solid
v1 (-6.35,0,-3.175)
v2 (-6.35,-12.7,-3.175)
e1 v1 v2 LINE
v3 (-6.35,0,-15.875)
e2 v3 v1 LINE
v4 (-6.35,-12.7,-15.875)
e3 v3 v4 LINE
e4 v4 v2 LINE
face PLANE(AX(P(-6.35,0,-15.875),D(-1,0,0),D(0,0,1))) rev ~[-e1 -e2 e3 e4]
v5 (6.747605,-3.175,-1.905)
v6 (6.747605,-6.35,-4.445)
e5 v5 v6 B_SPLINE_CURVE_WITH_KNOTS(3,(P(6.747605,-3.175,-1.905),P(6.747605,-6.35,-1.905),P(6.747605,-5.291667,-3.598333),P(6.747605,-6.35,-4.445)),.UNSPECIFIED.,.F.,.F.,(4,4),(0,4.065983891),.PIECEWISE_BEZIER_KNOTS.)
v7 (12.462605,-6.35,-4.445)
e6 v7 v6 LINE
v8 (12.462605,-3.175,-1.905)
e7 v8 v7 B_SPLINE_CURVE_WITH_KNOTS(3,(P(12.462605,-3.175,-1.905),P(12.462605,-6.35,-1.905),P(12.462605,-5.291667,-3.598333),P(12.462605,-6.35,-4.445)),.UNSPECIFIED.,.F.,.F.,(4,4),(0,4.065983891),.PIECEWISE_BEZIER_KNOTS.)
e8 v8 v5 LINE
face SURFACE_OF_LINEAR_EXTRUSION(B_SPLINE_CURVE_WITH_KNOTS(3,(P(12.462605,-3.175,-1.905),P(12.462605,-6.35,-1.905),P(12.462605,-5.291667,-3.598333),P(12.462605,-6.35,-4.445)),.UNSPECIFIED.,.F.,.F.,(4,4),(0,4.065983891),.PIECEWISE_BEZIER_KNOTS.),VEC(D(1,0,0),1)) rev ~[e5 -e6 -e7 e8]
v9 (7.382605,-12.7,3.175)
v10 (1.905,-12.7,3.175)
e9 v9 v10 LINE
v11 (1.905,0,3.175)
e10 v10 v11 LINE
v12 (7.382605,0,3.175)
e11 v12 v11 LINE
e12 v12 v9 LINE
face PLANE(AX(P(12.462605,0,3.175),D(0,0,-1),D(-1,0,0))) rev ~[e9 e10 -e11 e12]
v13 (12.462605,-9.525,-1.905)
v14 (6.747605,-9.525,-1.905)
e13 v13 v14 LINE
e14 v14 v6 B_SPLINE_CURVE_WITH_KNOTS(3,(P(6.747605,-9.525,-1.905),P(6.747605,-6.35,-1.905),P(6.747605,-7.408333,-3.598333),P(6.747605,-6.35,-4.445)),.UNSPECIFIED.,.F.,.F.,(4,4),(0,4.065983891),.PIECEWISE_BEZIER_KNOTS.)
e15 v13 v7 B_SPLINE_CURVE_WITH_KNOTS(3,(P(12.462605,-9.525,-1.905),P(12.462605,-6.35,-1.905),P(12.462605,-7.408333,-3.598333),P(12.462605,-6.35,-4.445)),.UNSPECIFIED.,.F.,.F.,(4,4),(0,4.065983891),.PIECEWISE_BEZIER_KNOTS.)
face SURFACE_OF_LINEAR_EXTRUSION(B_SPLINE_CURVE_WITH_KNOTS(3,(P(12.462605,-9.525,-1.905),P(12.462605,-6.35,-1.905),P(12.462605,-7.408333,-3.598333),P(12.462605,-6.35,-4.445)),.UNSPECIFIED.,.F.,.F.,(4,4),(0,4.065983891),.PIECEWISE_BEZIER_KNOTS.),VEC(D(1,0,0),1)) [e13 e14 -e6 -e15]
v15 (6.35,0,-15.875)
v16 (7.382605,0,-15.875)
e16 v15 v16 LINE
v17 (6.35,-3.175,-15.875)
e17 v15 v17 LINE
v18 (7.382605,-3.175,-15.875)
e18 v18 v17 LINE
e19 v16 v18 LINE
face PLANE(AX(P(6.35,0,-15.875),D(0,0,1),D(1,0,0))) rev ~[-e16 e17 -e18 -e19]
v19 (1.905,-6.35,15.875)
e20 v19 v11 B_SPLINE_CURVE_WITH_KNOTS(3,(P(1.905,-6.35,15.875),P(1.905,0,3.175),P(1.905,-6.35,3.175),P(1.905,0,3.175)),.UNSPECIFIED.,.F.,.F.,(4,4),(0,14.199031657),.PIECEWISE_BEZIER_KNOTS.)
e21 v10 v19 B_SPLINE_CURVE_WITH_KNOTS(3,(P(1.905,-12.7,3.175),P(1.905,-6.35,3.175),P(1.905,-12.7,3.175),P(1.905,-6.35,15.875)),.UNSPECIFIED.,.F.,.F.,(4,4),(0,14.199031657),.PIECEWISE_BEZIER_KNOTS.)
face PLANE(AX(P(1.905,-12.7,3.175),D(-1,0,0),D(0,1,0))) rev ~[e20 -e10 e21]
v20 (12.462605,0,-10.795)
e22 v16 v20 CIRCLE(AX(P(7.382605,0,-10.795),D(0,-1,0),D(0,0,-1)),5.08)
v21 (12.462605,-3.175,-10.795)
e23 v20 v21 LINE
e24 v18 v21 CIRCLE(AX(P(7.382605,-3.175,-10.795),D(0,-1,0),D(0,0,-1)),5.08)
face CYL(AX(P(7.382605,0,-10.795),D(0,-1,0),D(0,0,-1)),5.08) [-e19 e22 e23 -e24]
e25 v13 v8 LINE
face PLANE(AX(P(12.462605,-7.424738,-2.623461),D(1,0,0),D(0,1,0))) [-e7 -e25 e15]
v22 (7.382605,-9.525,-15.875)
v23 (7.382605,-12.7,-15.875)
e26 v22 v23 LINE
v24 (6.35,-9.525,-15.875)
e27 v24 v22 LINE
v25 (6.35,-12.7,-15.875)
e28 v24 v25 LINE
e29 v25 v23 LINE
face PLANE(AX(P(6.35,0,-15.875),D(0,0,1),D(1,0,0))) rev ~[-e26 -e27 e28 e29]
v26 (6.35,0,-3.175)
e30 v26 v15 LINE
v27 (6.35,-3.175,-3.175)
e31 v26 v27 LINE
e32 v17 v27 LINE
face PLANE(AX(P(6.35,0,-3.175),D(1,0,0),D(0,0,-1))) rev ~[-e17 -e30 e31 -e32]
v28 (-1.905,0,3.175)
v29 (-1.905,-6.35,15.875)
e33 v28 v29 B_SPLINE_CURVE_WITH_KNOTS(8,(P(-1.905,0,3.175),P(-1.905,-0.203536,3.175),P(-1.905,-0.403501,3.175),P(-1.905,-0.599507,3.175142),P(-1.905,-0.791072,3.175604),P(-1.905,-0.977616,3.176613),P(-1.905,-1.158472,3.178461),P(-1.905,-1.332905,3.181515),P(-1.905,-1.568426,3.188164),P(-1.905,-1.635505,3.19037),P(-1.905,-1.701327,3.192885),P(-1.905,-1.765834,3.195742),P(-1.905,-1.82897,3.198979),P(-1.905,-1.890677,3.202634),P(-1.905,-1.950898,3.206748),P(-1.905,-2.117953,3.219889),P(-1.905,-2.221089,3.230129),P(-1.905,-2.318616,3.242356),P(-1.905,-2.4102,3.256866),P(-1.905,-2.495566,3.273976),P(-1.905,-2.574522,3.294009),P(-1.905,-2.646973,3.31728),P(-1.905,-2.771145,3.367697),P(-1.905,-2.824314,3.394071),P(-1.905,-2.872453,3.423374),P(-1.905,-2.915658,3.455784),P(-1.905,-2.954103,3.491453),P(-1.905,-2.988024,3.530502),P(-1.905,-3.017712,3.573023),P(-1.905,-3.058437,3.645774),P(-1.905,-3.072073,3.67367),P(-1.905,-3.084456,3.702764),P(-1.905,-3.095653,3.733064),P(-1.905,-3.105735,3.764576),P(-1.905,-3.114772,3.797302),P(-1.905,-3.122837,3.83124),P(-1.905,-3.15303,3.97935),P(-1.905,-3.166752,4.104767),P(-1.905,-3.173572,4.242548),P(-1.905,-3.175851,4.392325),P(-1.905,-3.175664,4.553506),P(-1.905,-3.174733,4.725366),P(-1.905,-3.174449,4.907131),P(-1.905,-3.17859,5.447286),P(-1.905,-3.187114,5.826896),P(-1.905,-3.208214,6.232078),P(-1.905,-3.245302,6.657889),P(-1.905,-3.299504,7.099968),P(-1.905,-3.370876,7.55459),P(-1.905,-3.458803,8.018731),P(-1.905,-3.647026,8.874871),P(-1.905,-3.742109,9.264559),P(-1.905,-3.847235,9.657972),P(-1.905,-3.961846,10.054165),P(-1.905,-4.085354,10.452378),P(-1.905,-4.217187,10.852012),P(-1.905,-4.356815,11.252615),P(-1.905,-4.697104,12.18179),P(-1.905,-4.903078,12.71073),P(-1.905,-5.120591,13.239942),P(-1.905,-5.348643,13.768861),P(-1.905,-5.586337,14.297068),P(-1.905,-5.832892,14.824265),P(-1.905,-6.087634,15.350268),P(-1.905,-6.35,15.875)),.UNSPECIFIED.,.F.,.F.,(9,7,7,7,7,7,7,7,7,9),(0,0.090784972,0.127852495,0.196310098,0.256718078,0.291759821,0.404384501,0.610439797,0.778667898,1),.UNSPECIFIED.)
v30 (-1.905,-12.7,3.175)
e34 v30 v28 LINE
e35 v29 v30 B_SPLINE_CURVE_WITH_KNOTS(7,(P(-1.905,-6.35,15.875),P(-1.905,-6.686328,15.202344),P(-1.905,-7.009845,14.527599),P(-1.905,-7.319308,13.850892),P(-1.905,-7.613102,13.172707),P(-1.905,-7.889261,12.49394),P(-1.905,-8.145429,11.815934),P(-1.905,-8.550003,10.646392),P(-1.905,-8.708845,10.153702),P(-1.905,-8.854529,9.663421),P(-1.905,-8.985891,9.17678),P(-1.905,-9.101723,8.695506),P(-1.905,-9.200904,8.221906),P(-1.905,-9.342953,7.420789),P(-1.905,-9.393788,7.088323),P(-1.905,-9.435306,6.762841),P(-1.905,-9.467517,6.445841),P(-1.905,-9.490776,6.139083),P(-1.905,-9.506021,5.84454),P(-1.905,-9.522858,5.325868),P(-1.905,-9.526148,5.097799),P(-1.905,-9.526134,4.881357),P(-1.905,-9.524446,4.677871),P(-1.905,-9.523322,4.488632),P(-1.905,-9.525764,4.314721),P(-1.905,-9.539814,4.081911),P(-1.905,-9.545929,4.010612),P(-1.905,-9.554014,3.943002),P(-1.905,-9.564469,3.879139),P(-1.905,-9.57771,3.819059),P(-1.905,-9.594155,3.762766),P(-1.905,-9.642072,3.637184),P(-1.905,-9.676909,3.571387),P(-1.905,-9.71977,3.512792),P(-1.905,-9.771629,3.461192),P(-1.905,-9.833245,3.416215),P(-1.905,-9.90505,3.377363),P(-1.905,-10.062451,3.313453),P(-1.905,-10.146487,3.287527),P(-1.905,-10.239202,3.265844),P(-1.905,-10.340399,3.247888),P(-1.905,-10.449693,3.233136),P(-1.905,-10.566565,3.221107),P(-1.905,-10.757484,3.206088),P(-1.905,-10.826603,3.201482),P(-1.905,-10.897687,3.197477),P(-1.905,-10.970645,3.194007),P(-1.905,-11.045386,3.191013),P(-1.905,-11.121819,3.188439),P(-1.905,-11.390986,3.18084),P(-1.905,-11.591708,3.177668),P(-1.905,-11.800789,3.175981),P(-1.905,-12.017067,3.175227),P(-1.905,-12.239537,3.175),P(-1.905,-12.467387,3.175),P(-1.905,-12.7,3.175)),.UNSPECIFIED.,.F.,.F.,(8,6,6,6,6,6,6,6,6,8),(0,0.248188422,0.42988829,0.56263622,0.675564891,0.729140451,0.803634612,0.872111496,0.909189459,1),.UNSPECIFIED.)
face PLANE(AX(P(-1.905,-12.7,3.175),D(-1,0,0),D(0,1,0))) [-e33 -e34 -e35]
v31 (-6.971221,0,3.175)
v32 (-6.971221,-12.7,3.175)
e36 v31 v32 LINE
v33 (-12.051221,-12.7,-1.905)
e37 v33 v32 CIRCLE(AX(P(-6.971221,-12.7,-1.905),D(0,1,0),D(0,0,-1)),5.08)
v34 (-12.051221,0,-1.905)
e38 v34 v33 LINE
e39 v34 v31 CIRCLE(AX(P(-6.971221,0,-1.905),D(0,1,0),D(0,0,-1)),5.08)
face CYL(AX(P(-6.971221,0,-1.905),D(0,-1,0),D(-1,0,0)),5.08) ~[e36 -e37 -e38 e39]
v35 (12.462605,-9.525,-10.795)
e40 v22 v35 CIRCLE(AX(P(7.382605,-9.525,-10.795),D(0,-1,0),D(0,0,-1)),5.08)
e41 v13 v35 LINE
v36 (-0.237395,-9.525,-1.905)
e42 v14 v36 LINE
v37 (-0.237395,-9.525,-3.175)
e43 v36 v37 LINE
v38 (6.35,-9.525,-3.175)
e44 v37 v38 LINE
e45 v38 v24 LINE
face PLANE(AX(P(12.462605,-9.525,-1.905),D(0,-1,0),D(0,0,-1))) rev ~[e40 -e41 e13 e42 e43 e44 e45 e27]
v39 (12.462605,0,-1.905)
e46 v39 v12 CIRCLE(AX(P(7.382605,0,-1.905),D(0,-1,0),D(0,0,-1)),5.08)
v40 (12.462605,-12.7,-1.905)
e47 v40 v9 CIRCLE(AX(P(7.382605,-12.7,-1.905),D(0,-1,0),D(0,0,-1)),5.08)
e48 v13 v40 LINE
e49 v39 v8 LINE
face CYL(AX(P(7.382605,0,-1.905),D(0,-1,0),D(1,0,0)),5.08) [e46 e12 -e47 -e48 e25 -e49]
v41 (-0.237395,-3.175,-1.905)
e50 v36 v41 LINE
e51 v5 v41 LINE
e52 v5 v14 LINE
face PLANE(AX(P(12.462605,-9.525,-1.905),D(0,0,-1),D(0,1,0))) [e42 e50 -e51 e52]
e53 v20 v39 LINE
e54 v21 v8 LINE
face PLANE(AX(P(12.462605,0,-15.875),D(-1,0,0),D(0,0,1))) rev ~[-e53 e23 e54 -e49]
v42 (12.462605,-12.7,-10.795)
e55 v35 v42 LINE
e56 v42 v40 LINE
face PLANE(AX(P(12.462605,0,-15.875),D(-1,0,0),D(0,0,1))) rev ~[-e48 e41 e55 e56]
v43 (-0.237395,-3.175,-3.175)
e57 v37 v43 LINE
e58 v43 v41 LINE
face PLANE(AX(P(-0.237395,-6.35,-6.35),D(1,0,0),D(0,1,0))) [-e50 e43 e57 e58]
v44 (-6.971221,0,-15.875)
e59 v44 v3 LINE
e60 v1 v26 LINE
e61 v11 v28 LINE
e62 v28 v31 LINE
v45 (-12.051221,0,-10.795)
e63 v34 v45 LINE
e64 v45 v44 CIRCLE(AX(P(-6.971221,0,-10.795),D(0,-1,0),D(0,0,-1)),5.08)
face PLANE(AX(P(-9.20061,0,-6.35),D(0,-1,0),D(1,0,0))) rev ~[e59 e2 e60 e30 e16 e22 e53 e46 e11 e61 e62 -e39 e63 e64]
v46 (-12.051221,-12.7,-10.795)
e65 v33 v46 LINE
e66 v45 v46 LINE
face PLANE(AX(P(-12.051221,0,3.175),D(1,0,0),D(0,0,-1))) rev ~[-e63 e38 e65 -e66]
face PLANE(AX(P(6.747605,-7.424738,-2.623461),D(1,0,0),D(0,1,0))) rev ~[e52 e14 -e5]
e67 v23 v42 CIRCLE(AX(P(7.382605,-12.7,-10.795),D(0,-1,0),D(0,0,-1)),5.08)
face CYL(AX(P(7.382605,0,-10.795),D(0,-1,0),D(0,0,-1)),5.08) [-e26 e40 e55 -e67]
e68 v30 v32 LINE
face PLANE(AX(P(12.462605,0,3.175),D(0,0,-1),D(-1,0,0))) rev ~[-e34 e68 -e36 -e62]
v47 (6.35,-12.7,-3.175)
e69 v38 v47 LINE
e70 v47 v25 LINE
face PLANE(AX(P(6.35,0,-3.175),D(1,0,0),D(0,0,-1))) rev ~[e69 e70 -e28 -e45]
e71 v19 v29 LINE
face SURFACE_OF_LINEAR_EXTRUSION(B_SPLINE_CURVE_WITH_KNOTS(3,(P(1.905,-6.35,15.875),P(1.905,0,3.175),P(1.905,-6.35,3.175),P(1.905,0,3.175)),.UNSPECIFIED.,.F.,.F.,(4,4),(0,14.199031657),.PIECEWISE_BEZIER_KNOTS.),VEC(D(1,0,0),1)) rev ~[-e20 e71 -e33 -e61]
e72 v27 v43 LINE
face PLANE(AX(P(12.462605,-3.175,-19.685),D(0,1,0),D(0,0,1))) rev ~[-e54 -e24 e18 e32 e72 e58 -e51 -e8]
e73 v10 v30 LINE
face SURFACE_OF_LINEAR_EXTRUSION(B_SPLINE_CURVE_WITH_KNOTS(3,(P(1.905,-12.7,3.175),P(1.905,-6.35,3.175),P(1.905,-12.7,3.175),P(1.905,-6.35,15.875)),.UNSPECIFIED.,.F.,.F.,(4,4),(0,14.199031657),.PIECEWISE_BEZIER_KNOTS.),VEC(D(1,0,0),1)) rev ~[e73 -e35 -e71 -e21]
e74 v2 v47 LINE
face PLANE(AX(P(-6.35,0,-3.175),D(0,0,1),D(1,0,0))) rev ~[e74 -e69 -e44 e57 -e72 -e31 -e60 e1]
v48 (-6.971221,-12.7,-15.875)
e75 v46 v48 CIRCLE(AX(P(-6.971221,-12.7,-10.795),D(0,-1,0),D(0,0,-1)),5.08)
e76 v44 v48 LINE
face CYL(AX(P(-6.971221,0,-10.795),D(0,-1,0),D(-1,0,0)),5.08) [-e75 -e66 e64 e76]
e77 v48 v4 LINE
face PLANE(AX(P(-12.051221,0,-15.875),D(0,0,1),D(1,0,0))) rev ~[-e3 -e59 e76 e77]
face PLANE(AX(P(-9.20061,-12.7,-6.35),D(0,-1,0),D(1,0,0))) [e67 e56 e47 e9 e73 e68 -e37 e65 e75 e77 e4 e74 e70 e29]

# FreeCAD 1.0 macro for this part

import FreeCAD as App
import Part
import Sketcher
from FreeCAD import Vector
Q = App.Units.Quantity


def edges_at(feature, points):
    """Names of the edges that pass closest to the given points."""
    edges = feature.Shape.Edges
    near = lambda p: min(range(len(edges)), key=lambda i: edges[i].distToShape(Part.Vertex(*p))[0])
    return sorted({f"Edge{near(p) + 1}" for p in points})


def add_polygon(sketch, points):
    """Adds a closed chain of lines whose ends are joined by coincident constraints."""
    first, n = sketch.GeometryCount, len(points)
    for a, b in zip(points, points[1:] + points[:1]):
        sketch.addGeometry(Part.LineSegment(App.Vector(*a, 0), App.Vector(*b, 0)), False)
    for i in range(n):
        sketch.addConstraint(Sketcher.Constraint("Coincident", first + i, 2, first + (i + 1) % n, 1))

doc = App.newDocument("Part")
body = doc.addObject("PartDesign::Body", "Body")

# Sketch on XZ plane
sketch1 = body.newObject("Sketcher::SketchObject", "Sketch")
sketch1.AttachmentSupport = (doc.getObject("XZ_Plane"), [""])
sketch1.MapMode = "FlatFace"
add_polygon(sketch1, [(-12, 3), (-12, -16), (-6, -16), (-6, -3), (6, -3), (6, -16), (12, -16), (12, 3)])  # lines 0-7
sketch1.addConstraint([
    Sketcher.Constraint("Vertical", 0),
    Sketcher.Constraint("Horizontal", 1),
    Sketcher.Constraint("Vertical", 2),
    Sketcher.Constraint("Horizontal", 3),
    Sketcher.Constraint("Vertical", 4),
    Sketcher.Constraint("Horizontal", 5),
    Sketcher.Constraint("Vertical", 6),
    Sketcher.Constraint("Horizontal", 7),
    Sketcher.Constraint("Symmetric", 1, 2, 4, 2, -2),
    Sketcher.Constraint("Equal", 3, 2),
    Sketcher.Constraint("DistanceX", 3, 1, 3, 2, Q("0.5 in")),
    Sketcher.Constraint("DistanceY", 0, 2, 0, 1, Q("0.75 in")),
    Sketcher.Constraint("DistanceY", 0, 2, -1, 1, Q("0.625 in")),
    Sketcher.Constraint("DistanceX", 1, 1, 1, 2, Q("5.701221 mm")),
    Sketcher.Constraint("DistanceX", 5, 1, 5, 2, Q("6.112605 mm")),
])
pad1 = body.newObject("PartDesign::Pad", "Pad")
pad1.Profile = sketch1
pad1.Length = Q("0.5 in")
doc.recompute()

fillet = body.newObject("PartDesign::Fillet", "Fillet")
fillet.Base = (pad1, edges_at(pad1, [
    (-12.051, -6.35, 3.175),
    (12.463, -6.35, 3.175),
    (-12.051, -6.35, -15.875),
    (12.463, -6.35, -15.875),
]))
fillet.Radius = Q("0.2 in")

# Sketch on YZ plane
sketch2 = body.newObject("Sketcher::SketchObject", "Sketch001")
sketch2.AttachmentSupport = (doc.getObject("YZ_Plane"), [""])
sketch2.MapMode = "FlatFace"
sketch2.AttachmentOffset = App.Placement(Vector(0, 0, 12.462605), App.Rotation())
add_polygon(sketch2, [(-10, -2), (-10, -20), (-3, -20), (-3, -2)])  # lines 0-3
sketch2.addConstraint([
    Sketcher.Constraint("Vertical", 0),
    Sketcher.Constraint("Horizontal", 1),
    Sketcher.Constraint("Vertical", 2),
    Sketcher.Constraint("Horizontal", 3),
    Sketcher.Constraint("DistanceY", 0, 2, 0, 1, Q("0.7 in")),
    Sketcher.Constraint("DistanceX", 1, 1, 1, 2, Q("0.25 in")),
    Sketcher.Constraint("DistanceX", 0, 2, -1, 1, Q("0.375 in")),
    Sketcher.Constraint("DistanceY", 0, 2, -1, 1, Q("0.775 in")),
])
pocket1 = body.newObject("PartDesign::Pocket", "Pocket")
pocket1.Profile = sketch2
pocket1.Length = Q("0.5 in")

# Sketch on YZ plane
sketch3 = body.newObject("Sketcher::SketchObject", "Sketch002")
sketch3.AttachmentSupport = (doc.getObject("YZ_Plane"), [""])
sketch3.MapMode = "FlatFace"
sketch3.AttachmentOffset = App.Placement(Vector(0, 0, 12.462605), App.Rotation())
sketch3.addGeometry([
    Part.BSplineCurve([Vector(-9.525, -1.905, 0), Vector(-6.35, -1.905, 0), Vector(-7.408333, -3.598333, 0), Vector(-6.35, -4.445, 0)], [4, 4], [0, 4.065983891], False, 3, [1, 1, 1, 1], False),
    Part.BSplineCurve([Vector(-3.175, -1.905, 0), Vector(-6.35, -1.905, 0), Vector(-5.291667, -3.598333, 0), Vector(-6.35, -4.445, 0)], [4, 4], [0, 4.065983891], False, 3, [1, 1, 1, 1], False),
    Part.LineSegment(Vector(-3.175, -1.905, 0), Vector(-9.525, -1.905, 0)),
], False)
sketch3.addConstraint([
    Sketcher.Constraint("Block", 0),
    Sketcher.Constraint("Block", 1),
    Sketcher.Constraint("Coincident", 1, 1, 2, 1),
    Sketcher.Constraint("Coincident", 2, 2, 0, 1),
])
pad2 = body.newObject("PartDesign::Pad", "Pad001")
pad2.Profile = sketch3
pad2.Length = Q("0.225 in")
pad2.Reversed = True

# Sketch on XY plane
sketch4 = body.newObject("Sketcher::SketchObject", "Sketch003")
sketch4.AttachmentSupport = (doc.getObject("XY_Plane"), [""])
sketch4.MapMode = "FlatFace"
sketch4.AttachmentOffset = App.Placement(Vector(0, 0, 0.125 * 25.4), App.Rotation())
add_polygon(sketch4, [(-1.9, 0), (-1.9, -12.7), (1.9, -12.7), (1.9, 0)])  # lines 0-3
sketch4.addConstraint([
    Sketcher.Constraint("Vertical", 0),
    Sketcher.Constraint("Horizontal", 1),
    Sketcher.Constraint("Vertical", 2),
    Sketcher.Constraint("Horizontal", 3),
    Sketcher.Constraint("Symmetric", 2, 2, 3, 2, -1, 1),
    Sketcher.Constraint("DistanceY", 0, 2, 0, 1, Q("0.5 in")),
    Sketcher.Constraint("DistanceX", 1, 1, 1, 2, Q("0.15 in")),
])
pad3 = body.newObject("PartDesign::Pad", "Pad002")
pad3.Profile = sketch4
pad3.Length = Q("0.5 in")

# Sketch on YZ plane
sketch5 = body.newObject("Sketcher::SketchObject", "Sketch004")
sketch5.AttachmentSupport = (doc.getObject("YZ_Plane"), [""])
sketch5.MapMode = "FlatFace"
sketch5.AttachmentOffset = App.Placement(Vector(0, 0, 0.075 * 25.4), App.Rotation())
sketch5.addGeometry([
    Part.LineSegment(Vector(-12.7, 15.875, 0), Vector(-12.7, 3.175, 0)),  # 0
    Part.BSplineCurve([Vector(-12.7, 3.175, 0), Vector(-6.35, 3.175, 0), Vector(-12.7, 3.175, 0), Vector(-6.35, 15.875, 0)], [4, 4], [0, 14.199031657], False, 3, [1, 1, 1, 1], False),  # 1
    Part.LineSegment(Vector(-6.35, 15.875, 0), Vector(-12.7, 15.875, 0)),  # 2
    Part.LineSegment(Vector(0, 15.875, 0), Vector(-6.35, 15.875, 0)),  # 3
    Part.BSplineCurve([Vector(-6.35, 15.875, 0), Vector(0, 3.175, 0), Vector(-6.35, 3.175, 0), Vector(0, 3.175, 0)], [4, 4], [0, 14.199031657], False, 3, [1, 1, 1, 1], False),  # 4
    Part.LineSegment(Vector(0, 3.175, 0), Vector(0, 15.875, 0)),  # 5
], False)
sketch5.addConstraint([
    Sketcher.Constraint("Block", 1),
    Sketcher.Constraint("Block", 4),
    Sketcher.Constraint("Coincident", 0, 2, 1, 1),
    Sketcher.Constraint("Coincident", 1, 2, 2, 1),
    Sketcher.Constraint("Coincident", 2, 2, 0, 1),
    Sketcher.Constraint("Coincident", 3, 2, 4, 1),
    Sketcher.Constraint("Coincident", 4, 2, 5, 1),
    Sketcher.Constraint("Coincident", 5, 2, 3, 1),
    Sketcher.Constraint("Vertical", 0),
    Sketcher.Constraint("Horizontal", 2),
    Sketcher.Constraint("Horizontal", 3),
    Sketcher.Constraint("Vertical", 5),
])
pocket2 = body.newObject("PartDesign::Pocket", "Pocket001")
pocket2.Profile = sketch5
pocket2.Length = Q("1 in")

doc.recompute()
